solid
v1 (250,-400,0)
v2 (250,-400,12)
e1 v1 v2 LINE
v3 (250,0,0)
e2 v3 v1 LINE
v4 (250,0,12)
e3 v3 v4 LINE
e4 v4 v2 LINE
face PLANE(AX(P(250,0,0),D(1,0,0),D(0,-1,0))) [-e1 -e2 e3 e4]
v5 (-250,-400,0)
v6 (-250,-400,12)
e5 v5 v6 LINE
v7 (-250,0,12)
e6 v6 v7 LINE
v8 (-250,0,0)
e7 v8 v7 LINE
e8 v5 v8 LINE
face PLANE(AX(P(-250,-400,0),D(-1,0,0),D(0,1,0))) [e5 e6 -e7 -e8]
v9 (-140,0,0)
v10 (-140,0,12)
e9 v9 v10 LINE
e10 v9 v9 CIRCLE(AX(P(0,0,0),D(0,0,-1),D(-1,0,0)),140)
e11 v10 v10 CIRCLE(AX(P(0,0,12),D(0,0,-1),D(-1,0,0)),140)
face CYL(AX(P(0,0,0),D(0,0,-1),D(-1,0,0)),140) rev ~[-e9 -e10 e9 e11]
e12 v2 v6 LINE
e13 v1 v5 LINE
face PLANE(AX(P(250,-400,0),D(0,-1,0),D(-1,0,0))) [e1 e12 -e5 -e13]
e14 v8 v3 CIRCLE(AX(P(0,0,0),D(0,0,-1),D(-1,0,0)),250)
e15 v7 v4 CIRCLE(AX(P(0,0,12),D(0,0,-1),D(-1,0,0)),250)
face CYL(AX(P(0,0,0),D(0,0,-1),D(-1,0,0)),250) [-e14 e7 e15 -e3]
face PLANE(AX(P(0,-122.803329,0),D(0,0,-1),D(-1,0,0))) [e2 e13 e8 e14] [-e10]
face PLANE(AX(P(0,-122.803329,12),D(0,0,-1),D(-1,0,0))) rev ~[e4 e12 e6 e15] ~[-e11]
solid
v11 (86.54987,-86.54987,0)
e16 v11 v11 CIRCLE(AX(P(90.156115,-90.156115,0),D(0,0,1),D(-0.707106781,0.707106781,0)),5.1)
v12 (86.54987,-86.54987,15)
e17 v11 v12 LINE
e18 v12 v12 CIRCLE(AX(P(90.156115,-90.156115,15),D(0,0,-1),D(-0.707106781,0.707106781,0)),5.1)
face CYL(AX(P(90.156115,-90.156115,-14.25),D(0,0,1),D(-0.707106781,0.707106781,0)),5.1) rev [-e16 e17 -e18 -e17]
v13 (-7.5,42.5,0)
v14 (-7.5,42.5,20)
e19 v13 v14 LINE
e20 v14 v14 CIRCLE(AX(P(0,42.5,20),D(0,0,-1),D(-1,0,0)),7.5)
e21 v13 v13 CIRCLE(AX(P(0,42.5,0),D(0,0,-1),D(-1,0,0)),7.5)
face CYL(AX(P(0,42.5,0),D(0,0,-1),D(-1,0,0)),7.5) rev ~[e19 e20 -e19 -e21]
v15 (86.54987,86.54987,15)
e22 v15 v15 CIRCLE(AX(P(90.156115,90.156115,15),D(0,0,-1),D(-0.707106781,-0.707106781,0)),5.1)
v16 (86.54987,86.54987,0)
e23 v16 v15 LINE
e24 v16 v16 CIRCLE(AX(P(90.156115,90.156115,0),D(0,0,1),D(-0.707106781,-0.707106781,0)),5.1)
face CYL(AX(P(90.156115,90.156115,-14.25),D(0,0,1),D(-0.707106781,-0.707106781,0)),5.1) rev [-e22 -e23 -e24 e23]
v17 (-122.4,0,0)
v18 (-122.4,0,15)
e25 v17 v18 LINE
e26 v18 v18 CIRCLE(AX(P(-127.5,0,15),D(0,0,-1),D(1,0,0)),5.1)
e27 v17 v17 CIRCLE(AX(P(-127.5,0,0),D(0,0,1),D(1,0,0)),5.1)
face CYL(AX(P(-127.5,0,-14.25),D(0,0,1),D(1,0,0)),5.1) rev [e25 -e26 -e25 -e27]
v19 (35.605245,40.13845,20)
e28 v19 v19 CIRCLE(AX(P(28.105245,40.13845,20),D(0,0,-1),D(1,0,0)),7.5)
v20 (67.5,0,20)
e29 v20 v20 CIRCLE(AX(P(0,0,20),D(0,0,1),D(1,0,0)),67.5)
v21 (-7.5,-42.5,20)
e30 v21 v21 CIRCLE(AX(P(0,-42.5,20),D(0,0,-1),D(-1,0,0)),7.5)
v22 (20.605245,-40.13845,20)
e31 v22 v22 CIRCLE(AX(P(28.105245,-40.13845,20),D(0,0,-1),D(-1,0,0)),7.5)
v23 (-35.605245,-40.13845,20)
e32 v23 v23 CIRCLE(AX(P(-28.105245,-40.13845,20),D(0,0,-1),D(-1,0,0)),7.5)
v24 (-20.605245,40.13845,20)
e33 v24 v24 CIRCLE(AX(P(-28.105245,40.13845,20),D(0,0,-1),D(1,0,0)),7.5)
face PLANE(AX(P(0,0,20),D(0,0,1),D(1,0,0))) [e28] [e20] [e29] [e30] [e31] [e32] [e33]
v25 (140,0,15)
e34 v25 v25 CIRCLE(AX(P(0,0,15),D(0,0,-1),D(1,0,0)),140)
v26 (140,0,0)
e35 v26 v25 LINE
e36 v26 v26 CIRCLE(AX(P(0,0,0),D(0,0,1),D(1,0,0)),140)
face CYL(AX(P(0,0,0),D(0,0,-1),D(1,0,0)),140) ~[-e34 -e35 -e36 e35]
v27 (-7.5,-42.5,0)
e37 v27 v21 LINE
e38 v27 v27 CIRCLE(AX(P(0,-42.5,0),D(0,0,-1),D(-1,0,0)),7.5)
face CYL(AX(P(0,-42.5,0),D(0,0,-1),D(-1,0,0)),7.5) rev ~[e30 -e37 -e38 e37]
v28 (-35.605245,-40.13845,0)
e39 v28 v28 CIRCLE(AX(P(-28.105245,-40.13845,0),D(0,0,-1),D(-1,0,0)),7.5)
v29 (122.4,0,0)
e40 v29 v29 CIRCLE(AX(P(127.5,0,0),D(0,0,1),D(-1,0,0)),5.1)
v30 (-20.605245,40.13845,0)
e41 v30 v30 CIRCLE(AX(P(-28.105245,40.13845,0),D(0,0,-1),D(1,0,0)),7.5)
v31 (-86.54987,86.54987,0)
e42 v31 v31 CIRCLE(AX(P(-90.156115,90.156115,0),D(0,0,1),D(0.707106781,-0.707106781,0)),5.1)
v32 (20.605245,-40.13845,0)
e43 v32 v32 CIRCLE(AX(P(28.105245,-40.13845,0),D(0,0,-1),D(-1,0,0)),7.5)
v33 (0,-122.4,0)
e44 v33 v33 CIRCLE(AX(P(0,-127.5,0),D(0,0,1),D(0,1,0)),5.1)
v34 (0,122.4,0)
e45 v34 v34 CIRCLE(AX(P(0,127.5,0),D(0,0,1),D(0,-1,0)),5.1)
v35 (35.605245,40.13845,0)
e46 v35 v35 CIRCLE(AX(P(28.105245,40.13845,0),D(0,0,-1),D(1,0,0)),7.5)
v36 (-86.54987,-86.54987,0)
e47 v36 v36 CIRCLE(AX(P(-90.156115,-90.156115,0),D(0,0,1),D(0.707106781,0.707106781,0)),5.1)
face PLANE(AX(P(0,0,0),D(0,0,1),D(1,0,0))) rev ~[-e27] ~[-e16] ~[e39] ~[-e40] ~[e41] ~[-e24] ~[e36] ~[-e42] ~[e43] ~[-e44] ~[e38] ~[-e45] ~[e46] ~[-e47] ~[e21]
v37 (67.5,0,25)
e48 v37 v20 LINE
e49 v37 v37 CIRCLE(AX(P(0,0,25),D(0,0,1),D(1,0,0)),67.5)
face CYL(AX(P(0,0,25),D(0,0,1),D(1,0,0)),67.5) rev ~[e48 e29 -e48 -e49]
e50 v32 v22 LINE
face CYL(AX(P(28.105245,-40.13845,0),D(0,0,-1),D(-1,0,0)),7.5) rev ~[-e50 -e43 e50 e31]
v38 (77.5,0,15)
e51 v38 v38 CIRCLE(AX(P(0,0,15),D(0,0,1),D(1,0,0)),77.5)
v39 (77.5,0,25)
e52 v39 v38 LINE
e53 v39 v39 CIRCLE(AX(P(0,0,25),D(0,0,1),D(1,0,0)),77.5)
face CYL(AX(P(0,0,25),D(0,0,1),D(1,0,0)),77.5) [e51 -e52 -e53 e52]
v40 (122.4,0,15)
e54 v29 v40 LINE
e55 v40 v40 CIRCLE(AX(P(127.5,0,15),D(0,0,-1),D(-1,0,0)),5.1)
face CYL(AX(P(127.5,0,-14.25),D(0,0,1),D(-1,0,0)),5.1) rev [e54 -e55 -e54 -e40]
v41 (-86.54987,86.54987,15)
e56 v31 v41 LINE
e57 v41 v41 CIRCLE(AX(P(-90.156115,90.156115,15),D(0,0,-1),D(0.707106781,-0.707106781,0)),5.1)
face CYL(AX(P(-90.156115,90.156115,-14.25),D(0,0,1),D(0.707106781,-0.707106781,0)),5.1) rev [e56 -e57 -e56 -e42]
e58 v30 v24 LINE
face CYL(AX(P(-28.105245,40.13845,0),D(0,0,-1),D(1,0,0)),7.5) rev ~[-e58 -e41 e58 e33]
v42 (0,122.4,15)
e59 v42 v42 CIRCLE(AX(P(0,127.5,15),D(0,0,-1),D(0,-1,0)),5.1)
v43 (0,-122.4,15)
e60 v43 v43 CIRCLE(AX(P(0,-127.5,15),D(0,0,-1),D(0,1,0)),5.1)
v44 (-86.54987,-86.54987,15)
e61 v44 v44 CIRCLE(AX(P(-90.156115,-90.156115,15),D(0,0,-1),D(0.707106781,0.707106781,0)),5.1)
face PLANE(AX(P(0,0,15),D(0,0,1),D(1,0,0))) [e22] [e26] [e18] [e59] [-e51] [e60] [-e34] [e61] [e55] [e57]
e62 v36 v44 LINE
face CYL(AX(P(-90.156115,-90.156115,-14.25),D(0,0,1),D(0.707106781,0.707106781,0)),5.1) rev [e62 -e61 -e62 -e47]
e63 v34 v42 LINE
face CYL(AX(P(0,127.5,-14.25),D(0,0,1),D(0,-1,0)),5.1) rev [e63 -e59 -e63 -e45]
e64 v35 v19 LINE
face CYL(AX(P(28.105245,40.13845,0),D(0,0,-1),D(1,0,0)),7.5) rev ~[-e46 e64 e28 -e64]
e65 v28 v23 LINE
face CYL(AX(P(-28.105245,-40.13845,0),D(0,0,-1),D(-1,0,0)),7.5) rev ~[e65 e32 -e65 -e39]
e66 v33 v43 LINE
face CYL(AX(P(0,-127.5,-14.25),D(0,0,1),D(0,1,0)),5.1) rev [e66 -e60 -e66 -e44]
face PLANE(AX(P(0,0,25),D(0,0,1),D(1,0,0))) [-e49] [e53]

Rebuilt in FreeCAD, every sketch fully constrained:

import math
import FreeCAD as App
import Part
import Sketcher
from FreeCAD import Vector
Q = App.Units.Quantity

doc = App.newDocument("Part")
body = doc.addObject("PartDesign::Body", "Body")

# Sketch on XY plane
sketch1 = body.newObject("Sketcher::SketchObject", "Sketch")
sketch1.AttachmentSupport = (doc.getObject("XY_Plane"), [""])
sketch1.MapMode = "FlatFace"
sketch1.addGeometry(Part.Circle(Vector(0, 0, 0), Vector(0, 0, 1), 140), False)
sketch1.addConstraint(Sketcher.Constraint("Coincident", 0, 3, -1, 1))
sketch1.addConstraint(Sketcher.Constraint("Diameter", 0, Q("280 mm")))
pad1 = body.newObject("PartDesign::Pad", "Pad")
pad1.Profile = sketch1
pad1.Length = 25

# Sketch on XY plane
sketch2 = body.newObject("Sketcher::SketchObject", "Sketch001")
sketch2.AttachmentSupport = (doc.getObject("XY_Plane"), [""])
sketch2.MapMode = "FlatFace"
sketch2.AttachmentOffset = App.Placement(Vector(0, 0, 25), App.Rotation())
sketch2.addGeometry(Part.Circle(Vector(0, 0, 0), Vector(0, 0, 1), 68), False)
sketch2.addConstraint(Sketcher.Constraint("Coincident", 0, 3, -1, 1))
sketch2.addConstraint(Sketcher.Constraint("Diameter", 0, Q("135 mm")))
pocket1 = body.newObject("PartDesign::Pocket", "Pocket")
pocket1.Profile = sketch2
pocket1.Length = 5

# Sketch on XY plane
sketch3 = body.newObject("Sketcher::SketchObject", "Sketch002")
sketch3.AttachmentSupport = (doc.getObject("XY_Plane"), [""])
sketch3.MapMode = "FlatFace"
sketch3.AttachmentOffset = App.Placement(Vector(0, 0, 25), App.Rotation())
sketch3.addGeometry(Part.LineSegment(Vector(-181, 181, 0), Vector(-181, -181, 0)), False)
sketch3.addGeometry(Part.LineSegment(Vector(-181, -181, 0), Vector(181, -181, 0)), False)
sketch3.addGeometry(Part.LineSegment(Vector(181, -181, 0), Vector(181, 181, 0)), False)
sketch3.addGeometry(Part.LineSegment(Vector(181, 181, 0), Vector(-181, 181, 0)), False)
sketch3.addGeometry(Part.Circle(Vector(0, 0, 0), Vector(0, 0, 1), 78), False)
sketch3.addConstraint(Sketcher.Constraint("Coincident", 0, 2, 1, 1))
sketch3.addConstraint(Sketcher.Constraint("Coincident", 1, 2, 2, 1))
sketch3.addConstraint(Sketcher.Constraint("Coincident", 2, 2, 3, 1))
sketch3.addConstraint(Sketcher.Constraint("Coincident", 3, 2, 0, 1))
sketch3.addConstraint(Sketcher.Constraint("Vertical", 0))
sketch3.addConstraint(Sketcher.Constraint("Horizontal", 1))
sketch3.addConstraint(Sketcher.Constraint("Vertical", 2))
sketch3.addConstraint(Sketcher.Constraint("Horizontal", 3))
sketch3.addConstraint(Sketcher.Constraint("Coincident", 4, 3, -1, 1))
sketch3.addConstraint(Sketcher.Constraint("Symmetric", 0, 2, 2, 2, -1, 1))
sketch3.addConstraint(Sketcher.Constraint("Equal", 3, 0))
sketch3.addConstraint(Sketcher.Constraint("Diameter", 4, Q("155 mm")))
sketch3.addConstraint(Sketcher.Constraint("DistanceX", 1, 1, 1, 2, Q("361.354 mm")))
pocket2 = body.newObject("PartDesign::Pocket", "Pocket001")
pocket2.Profile = sketch3
pocket2.Length = 10

# Sketch on XY plane
sketch4 = body.newObject("Sketcher::SketchObject", "Sketch003")
sketch4.AttachmentSupport = (doc.getObject("XY_Plane"), [""])
sketch4.MapMode = "FlatFace"
sketch4.addGeometry(Part.Circle(Vector(0, 42, 0), Vector(0, 0, 1), 8), False)
sketch4.addGeometry(Part.Circle(Vector(0, -42, 0), Vector(0, 0, 1), 8), False)
sketch4.addGeometry(Part.Circle(Vector(28, -40, 0), Vector(0, 0, 1), 8), False)
sketch4.addGeometry(Part.Circle(Vector(-28, -40, 0), Vector(0, 0, 1), 8), False)
sketch4.addGeometry(Part.Circle(Vector(-28, 40, 0), Vector(0, 0, 1), 8), False)
sketch4.addGeometry(Part.Circle(Vector(28, 40, 0), Vector(0, 0, 1), 8), False)
sketch4.addConstraint(Sketcher.Constraint("Equal", 0, 1))
sketch4.addConstraint(Sketcher.Constraint("Equal", 1, 2))
sketch4.addConstraint(Sketcher.Constraint("Equal", 2, 3))
sketch4.addConstraint(Sketcher.Constraint("Equal", 3, 4))
sketch4.addConstraint(Sketcher.Constraint("Equal", 4, 5))
sketch4.addConstraint(Sketcher.Constraint("Symmetric", 0, 3, 1, 3, -1, 1))
sketch4.addConstraint(Sketcher.Constraint("Symmetric", 2, 3, 4, 3, -1, 1))
sketch4.addConstraint(Sketcher.Constraint("Symmetric", 3, 3, 5, 3, -1, 1))
sketch4.addConstraint(Sketcher.Constraint("Symmetric", 2, 3, 3, 3, -2))
sketch4.addConstraint(Sketcher.Constraint("PointOnObject", 0, 3, -2))
sketch4.addConstraint(Sketcher.Constraint("Diameter", 0, Q("15 mm")))
sketch4.addConstraint(Sketcher.Constraint("DistanceY", 1, 3, 0, 3, Q("85 mm")))
sketch4.addConstraint(Sketcher.Constraint("DistanceY", 3, 3, 4, 3, Q("80.2769 mm")))
sketch4.addConstraint(Sketcher.Constraint("DistanceX", 3, 3, 2, 3, Q("56.210491 mm")))
pocket3 = body.newObject("PartDesign::Pocket", "Pocket002")
pocket3.Profile = sketch4
pocket3.Type = "ThroughAll"
pocket3.Reversed = True

# Sketch on YZ plane
sketch5 = body.newObject("Sketcher::SketchObject", "Sketch004")
sketch5.AttachmentSupport = (doc.getObject("YZ_Plane"), [""])
sketch5.MapMode = "FlatFace"
sketch5.addGeometry(Part.LineSegment(Vector(128, -17, 0), Vector(128, 15, 0)), False)
sketch5.addGeometry(Part.LineSegment(Vector(128, 15, 0), Vector(122, 15, 0)), False)
sketch5.addGeometry(Part.LineSegment(Vector(122, 15, 0), Vector(122, -14, 0)), False)
sketch5.addGeometry(Part.LineSegment(Vector(122, -14, 0), Vector(128, -17, 0)), False)
sketch5.addGeometry(Part.LineSegment(Vector(128, 15, 0), Vector(128, -17, 0)), True)  # axis
sketch5.addConstraint(Sketcher.Constraint("Coincident", 0, 2, 1, 1))
sketch5.addConstraint(Sketcher.Constraint("Coincident", 1, 2, 2, 1))
sketch5.addConstraint(Sketcher.Constraint("Coincident", 2, 2, 3, 1))
sketch5.addConstraint(Sketcher.Constraint("Coincident", 3, 2, 0, 1))
sketch5.addConstraint(Sketcher.Constraint("Vertical", 0))
sketch5.addConstraint(Sketcher.Constraint("Horizontal", 1))
sketch5.addConstraint(Sketcher.Constraint("Vertical", 2))
sketch5.addConstraint(Sketcher.Constraint("Vertical", 4))
sketch5.addConstraint(Sketcher.Constraint("Coincident", 4, 1, 0, 2))
sketch5.addConstraint(Sketcher.Constraint("Equal", 0, 4))
sketch5.addConstraint(Sketcher.Constraint("Angle", 3, Q("-31 deg")))
sketch5.addConstraint(Sketcher.Constraint("DistanceX", 1, 2, 1, 1, Q("5.1 mm")))
sketch5.addConstraint(Sketcher.Constraint("DistanceY", -1, 1, 0, 2, Q("15 mm")))
sketch5.addConstraint(Sketcher.Constraint("DistanceY", 2, 2, 2, 1, Q("29.25 mm")))
sketch5.addConstraint(Sketcher.Constraint("DistanceX", -1, 1, 0, 2, Q("127.5 mm")))
groove = body.newObject("PartDesign::Groove", "Groove")
groove.Profile = sketch5
groove.ReferenceAxis = (sketch5, ["Axis0"])
groove.Angle = 360
doc.recompute()

polarpattern = body.newObject("PartDesign::PolarPattern", "PolarPattern")
polarpattern.Originals = [groove]
polarpattern.Axis = (doc.getObject("Z_Axis"), [""])
polarpattern.Angle = 360
polarpattern.Occurrences = 8
body.Tip = polarpattern
body2 = doc.addObject("PartDesign::Body", "Body001")

# Sketch on XY plane
sketch6 = body2.newObject("Sketcher::SketchObject", "Sketch005")
sketch6.AttachmentSupport = (doc.getObject("XY_Plane001"), [""])
sketch6.MapMode = "FlatFace"
sketch6.addGeometry(Part.LineSegment(Vector(250, 0, 0), Vector(250, -400, 0)), False)
sketch6.addGeometry(Part.LineSegment(Vector(250, -400, 0), Vector(-250, -400, 0)), False)
sketch6.addGeometry(Part.LineSegment(Vector(-250, -400, 0), Vector(-250, 0, 0)), False)
sketch6.addGeometry(Part.ArcOfCircle(Part.Circle(Vector(0, 0, 0), Vector(0, 0, 1), 250), math.radians(0), math.radians(180)), False)
sketch6.addGeometry(Part.Circle(Vector(0, 0, 0), Vector(0, 0, 1), 140), False)
sketch6.addConstraint(Sketcher.Constraint("Coincident", 0, 2, 1, 1))
sketch6.addConstraint(Sketcher.Constraint("Coincident", 1, 2, 2, 1))
sketch6.addConstraint(Sketcher.Constraint("Tangent", 2, 2, 3, 2))
sketch6.addConstraint(Sketcher.Constraint("Tangent", 3, 1, 0, 1))
sketch6.addConstraint(Sketcher.Constraint("Vertical", 0))
sketch6.addConstraint(Sketcher.Constraint("Horizontal", 1))
sketch6.addConstraint(Sketcher.Constraint("Vertical", 2))
sketch6.addConstraint(Sketcher.Constraint("Coincident", 3, 3, -1, 1))
sketch6.addConstraint(Sketcher.Constraint("Coincident", 4, 3, -1, 1))
sketch6.addConstraint(Sketcher.Constraint("Diameter", 4, Q("280 mm")))
sketch6.addConstraint(Sketcher.Constraint("Radius", 3, Q("250 mm")))
sketch6.addConstraint(Sketcher.Constraint("DistanceY", 0, 2, 0, 1, Q("400 mm")))
pad2 = body2.newObject("PartDesign::Pad", "Pad001")
pad2.Profile = sketch6
pad2.Length = 12

doc.recompute()
